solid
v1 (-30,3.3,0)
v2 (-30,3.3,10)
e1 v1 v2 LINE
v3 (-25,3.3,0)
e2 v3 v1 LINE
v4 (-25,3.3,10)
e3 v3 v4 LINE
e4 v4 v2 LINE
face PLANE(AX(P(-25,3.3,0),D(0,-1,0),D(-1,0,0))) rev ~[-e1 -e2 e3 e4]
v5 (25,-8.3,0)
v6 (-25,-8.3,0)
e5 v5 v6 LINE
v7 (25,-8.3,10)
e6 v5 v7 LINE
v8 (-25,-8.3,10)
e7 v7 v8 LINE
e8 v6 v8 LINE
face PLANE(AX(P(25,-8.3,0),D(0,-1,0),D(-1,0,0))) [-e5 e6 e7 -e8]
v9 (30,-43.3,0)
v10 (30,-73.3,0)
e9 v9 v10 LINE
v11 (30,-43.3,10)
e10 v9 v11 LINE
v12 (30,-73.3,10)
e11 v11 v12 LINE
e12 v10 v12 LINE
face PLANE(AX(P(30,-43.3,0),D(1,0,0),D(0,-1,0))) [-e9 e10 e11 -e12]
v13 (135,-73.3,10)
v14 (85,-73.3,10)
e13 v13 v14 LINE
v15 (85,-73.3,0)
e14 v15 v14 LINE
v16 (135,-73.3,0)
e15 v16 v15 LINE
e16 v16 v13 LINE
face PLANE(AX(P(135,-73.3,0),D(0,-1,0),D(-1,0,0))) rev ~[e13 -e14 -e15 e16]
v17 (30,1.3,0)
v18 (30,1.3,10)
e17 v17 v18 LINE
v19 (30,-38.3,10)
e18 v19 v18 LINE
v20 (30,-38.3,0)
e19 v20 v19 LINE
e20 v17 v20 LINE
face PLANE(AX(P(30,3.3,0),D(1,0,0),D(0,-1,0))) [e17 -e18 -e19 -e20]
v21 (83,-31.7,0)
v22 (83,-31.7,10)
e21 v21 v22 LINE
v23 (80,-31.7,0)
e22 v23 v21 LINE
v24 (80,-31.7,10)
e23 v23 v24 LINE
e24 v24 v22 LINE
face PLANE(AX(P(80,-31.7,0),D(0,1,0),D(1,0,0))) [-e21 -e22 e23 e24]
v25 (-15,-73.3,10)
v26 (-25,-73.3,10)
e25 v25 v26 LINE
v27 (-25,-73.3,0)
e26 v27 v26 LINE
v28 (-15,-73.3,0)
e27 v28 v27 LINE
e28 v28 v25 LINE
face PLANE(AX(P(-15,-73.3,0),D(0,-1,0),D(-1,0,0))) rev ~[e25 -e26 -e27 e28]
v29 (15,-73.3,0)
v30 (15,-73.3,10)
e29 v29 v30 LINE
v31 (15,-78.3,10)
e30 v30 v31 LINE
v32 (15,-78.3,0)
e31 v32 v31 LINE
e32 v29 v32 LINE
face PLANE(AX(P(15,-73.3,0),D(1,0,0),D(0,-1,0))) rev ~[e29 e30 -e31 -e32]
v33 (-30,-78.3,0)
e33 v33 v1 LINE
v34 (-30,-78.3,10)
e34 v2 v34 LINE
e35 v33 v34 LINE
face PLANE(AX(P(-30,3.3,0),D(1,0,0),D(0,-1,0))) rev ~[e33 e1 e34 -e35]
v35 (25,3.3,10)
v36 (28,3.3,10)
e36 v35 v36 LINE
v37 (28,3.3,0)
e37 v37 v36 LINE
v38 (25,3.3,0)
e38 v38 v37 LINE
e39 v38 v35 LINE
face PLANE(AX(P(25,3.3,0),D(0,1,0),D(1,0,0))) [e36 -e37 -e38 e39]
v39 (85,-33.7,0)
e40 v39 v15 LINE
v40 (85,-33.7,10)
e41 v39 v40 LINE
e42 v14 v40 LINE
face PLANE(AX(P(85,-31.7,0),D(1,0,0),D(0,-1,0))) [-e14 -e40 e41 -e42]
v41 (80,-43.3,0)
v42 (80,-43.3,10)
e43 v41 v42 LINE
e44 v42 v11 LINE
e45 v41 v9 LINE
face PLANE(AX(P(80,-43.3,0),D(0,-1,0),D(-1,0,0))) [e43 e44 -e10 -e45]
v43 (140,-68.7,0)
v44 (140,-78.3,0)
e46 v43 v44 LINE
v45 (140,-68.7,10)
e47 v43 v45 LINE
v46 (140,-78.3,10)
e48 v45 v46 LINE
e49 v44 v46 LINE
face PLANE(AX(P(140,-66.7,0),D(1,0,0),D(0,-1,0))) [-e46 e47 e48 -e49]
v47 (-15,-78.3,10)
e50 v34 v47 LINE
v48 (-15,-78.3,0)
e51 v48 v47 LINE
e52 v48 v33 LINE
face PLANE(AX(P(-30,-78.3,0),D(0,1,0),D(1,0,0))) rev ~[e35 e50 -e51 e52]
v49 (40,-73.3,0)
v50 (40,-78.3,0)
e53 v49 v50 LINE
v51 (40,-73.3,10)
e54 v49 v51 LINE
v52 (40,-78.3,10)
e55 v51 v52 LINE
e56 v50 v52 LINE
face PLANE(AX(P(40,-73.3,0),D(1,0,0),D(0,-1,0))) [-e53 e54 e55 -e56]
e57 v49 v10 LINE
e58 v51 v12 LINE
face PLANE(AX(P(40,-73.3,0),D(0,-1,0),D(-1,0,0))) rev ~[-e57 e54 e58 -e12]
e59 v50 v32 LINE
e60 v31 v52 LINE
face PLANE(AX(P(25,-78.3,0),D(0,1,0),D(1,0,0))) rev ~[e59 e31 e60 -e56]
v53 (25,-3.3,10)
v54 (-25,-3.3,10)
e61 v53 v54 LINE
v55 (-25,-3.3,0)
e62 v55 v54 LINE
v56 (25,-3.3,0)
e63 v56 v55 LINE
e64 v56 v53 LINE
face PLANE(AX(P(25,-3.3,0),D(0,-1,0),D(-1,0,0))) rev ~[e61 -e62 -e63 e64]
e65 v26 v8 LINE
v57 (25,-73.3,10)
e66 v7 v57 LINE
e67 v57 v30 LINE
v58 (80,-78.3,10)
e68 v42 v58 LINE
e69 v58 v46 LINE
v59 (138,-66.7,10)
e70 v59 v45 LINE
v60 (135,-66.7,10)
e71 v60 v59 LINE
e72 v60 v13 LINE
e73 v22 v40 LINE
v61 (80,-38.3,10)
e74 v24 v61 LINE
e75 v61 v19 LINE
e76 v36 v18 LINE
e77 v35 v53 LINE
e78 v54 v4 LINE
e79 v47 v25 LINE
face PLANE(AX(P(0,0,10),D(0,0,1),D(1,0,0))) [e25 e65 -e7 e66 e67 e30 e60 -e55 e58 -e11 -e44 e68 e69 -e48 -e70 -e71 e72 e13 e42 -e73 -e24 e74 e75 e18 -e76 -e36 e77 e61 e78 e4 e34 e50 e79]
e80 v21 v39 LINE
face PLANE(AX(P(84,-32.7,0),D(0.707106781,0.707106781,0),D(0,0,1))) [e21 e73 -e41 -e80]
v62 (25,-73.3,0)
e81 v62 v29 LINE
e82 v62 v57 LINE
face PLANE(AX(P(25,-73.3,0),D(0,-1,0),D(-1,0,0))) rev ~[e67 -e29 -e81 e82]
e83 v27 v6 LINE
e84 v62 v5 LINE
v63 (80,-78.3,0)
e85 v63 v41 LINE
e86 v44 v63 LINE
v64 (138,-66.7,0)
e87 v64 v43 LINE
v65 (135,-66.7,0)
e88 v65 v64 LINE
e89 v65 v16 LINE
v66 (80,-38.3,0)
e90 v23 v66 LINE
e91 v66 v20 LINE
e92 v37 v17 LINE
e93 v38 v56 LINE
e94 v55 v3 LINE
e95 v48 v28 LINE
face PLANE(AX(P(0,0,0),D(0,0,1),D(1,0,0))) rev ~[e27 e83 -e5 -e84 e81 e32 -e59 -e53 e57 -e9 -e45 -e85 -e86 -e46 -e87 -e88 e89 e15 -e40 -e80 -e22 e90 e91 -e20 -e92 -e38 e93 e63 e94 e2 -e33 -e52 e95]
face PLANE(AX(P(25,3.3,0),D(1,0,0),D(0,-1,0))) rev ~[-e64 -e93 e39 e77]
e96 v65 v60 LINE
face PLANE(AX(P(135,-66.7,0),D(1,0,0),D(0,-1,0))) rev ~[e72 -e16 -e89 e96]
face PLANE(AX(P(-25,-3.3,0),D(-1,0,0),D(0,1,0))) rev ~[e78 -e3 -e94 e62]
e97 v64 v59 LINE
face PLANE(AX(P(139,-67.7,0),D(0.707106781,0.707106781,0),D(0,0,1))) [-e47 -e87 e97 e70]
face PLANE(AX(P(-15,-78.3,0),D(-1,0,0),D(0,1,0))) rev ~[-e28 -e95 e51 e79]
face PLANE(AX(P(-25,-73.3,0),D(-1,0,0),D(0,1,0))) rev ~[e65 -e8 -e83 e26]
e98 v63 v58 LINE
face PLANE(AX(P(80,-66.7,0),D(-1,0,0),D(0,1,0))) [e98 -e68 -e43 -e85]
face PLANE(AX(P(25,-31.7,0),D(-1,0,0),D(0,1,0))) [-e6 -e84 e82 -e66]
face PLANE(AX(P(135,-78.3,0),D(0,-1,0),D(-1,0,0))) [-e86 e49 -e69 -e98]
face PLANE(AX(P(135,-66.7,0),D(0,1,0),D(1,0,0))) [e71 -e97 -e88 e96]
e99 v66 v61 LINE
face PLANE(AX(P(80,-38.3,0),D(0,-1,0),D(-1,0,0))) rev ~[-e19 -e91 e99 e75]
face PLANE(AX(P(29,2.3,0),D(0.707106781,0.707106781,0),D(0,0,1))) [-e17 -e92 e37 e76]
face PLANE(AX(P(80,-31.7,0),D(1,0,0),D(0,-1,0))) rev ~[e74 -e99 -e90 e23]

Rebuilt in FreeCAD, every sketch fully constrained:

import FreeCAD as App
import Part
import Sketcher
Q = App.Units.Quantity


def edges_at(feature, points):
    """Names of the edges that pass closest to the given points."""
    edges = feature.Shape.Edges
    near = lambda p: min(range(len(edges)), key=lambda i: edges[i].distToShape(Part.Vertex(*p))[0])
    return sorted({f"Edge{near(p) + 1}" for p in points})

doc = App.newDocument("Part")
params = doc.addObject("Spreadsheet::Sheet", "Params")
for row, (alias, value) in enumerate([
    ("sketch1_width", "5 mm"),
    ("sketch1_width2", "15 mm"),
    ("sketch1_width3", "50 mm"),
    ("sketch1_height", "35 mm"),
    ("sketch1_height2", "6.6 mm"),
    ("pad1_length", "10 mm"),
    ("chamfer_size", "2 mm"),
], start=1):
    params.set(f"A{row}", alias)
    params.set(f"B{row}", "=" + value)
    params.setAlias(f"B{row}", alias)

body = doc.addObject("PartDesign::Body", "Body")

sketch1 = body.newObject("Sketcher::SketchObject", "Sketch")
sketch1.AttachmentSupport = (doc.getObject("XY_Plane"), [""])
sketch1.MapMode = "FlatFace"
sketch1.addGeometry([
    Part.LineSegment(App.Vector(-25, -3, 0), App.Vector(-25, 3, 0)),
    Part.LineSegment(App.Vector(-25, 3, 0), App.Vector(-30, 3, 0)),
    Part.LineSegment(App.Vector(-30, 3, 0), App.Vector(-30, -78, 0)),
    Part.LineSegment(App.Vector(-30, -78, 0), App.Vector(-15, -78, 0)),
    Part.LineSegment(App.Vector(-15, -78, 0), App.Vector(-15, -73, 0)),
    Part.LineSegment(App.Vector(-15, -73, 0), App.Vector(-25, -73, 0)),
    Part.LineSegment(App.Vector(-25, -73, 0), App.Vector(-25, -8, 0)),
    Part.LineSegment(App.Vector(-25, -8, 0), App.Vector(25, -8, 0)),
    Part.LineSegment(App.Vector(25, -8, 0), App.Vector(25, -73, 0)),
    Part.LineSegment(App.Vector(25, -73, 0), App.Vector(15, -73, 0)),
    Part.LineSegment(App.Vector(15, -73, 0), App.Vector(15, -78, 0)),
    Part.LineSegment(App.Vector(15, -78, 0), App.Vector(40, -78, 0)),
    Part.LineSegment(App.Vector(40, -78, 0), App.Vector(40, -73, 0)),
    Part.LineSegment(App.Vector(40, -73, 0), App.Vector(30, -73, 0)),
    Part.LineSegment(App.Vector(30, -73, 0), App.Vector(30, -43, 0)),
    Part.LineSegment(App.Vector(30, -43, 0), App.Vector(80, -43, 0)),
    Part.LineSegment(App.Vector(80, -43, 0), App.Vector(80, -78, 0)),
    Part.LineSegment(App.Vector(80, -78, 0), App.Vector(140, -78, 0)),
    Part.LineSegment(App.Vector(140, -78, 0), App.Vector(140, -67, 0)),
    Part.LineSegment(App.Vector(140, -67, 0), App.Vector(135, -67, 0)),
    Part.LineSegment(App.Vector(135, -67, 0), App.Vector(135, -73, 0)),
    Part.LineSegment(App.Vector(135, -73, 0), App.Vector(85, -73, 0)),
    Part.LineSegment(App.Vector(85, -73, 0), App.Vector(85, -32, 0)),
    Part.LineSegment(App.Vector(85, -32, 0), App.Vector(80, -32, 0)),
    Part.LineSegment(App.Vector(80, -32, 0), App.Vector(80, -38, 0)),
    Part.LineSegment(App.Vector(80, -38, 0), App.Vector(30, -38, 0)),
    Part.LineSegment(App.Vector(30, -38, 0), App.Vector(30, 3, 0)),
    Part.LineSegment(App.Vector(30, 3, 0), App.Vector(25, 3, 0)),
    Part.LineSegment(App.Vector(25, 3, 0), App.Vector(25, -3, 0)),
    Part.LineSegment(App.Vector(25, -3, 0), App.Vector(-25, -3, 0)),
], False)
sketch1.addConstraint([
    Sketcher.Constraint("Coincident", 0, 2, 1, 1),
    Sketcher.Constraint("Coincident", 1, 2, 2, 1),
    Sketcher.Constraint("Coincident", 2, 2, 3, 1),
    Sketcher.Constraint("Coincident", 3, 2, 4, 1),
    Sketcher.Constraint("Coincident", 4, 2, 5, 1),
    Sketcher.Constraint("Coincident", 5, 2, 6, 1),
    Sketcher.Constraint("Coincident", 6, 2, 7, 1),
    Sketcher.Constraint("Coincident", 7, 2, 8, 1),
    Sketcher.Constraint("Coincident", 8, 2, 9, 1),
    Sketcher.Constraint("Coincident", 9, 2, 10, 1),
    Sketcher.Constraint("Coincident", 10, 2, 11, 1),
    Sketcher.Constraint("Coincident", 11, 2, 12, 1),
    Sketcher.Constraint("Coincident", 12, 2, 13, 1),
    Sketcher.Constraint("Coincident", 13, 2, 14, 1),
    Sketcher.Constraint("Coincident", 14, 2, 15, 1),
    Sketcher.Constraint("Coincident", 15, 2, 16, 1),
    Sketcher.Constraint("Coincident", 16, 2, 17, 1),
    Sketcher.Constraint("Coincident", 17, 2, 18, 1),
    Sketcher.Constraint("Coincident", 18, 2, 19, 1),
    Sketcher.Constraint("Coincident", 19, 2, 20, 1),
    Sketcher.Constraint("Coincident", 20, 2, 21, 1),
    Sketcher.Constraint("Coincident", 21, 2, 22, 1),
    Sketcher.Constraint("Coincident", 22, 2, 23, 1),
    Sketcher.Constraint("Coincident", 23, 2, 24, 1),
    Sketcher.Constraint("Coincident", 24, 2, 25, 1),
    Sketcher.Constraint("Coincident", 25, 2, 26, 1),
    Sketcher.Constraint("Coincident", 26, 2, 27, 1),
    Sketcher.Constraint("Coincident", 27, 2, 28, 1),
    Sketcher.Constraint("Coincident", 28, 2, 29, 1),
    Sketcher.Constraint("Coincident", 29, 2, 0, 1),
    Sketcher.Constraint("Vertical", 0),
    Sketcher.Constraint("Horizontal", 1),
    Sketcher.Constraint("Vertical", 2),
    Sketcher.Constraint("Horizontal", 3),
    Sketcher.Constraint("Vertical", 4),
    Sketcher.Constraint("Horizontal", 5),
    Sketcher.Constraint("Vertical", 6),
    Sketcher.Constraint("Horizontal", 7),
    Sketcher.Constraint("Vertical", 8),
    Sketcher.Constraint("Horizontal", 9),
    Sketcher.Constraint("Vertical", 10),
    Sketcher.Constraint("Horizontal", 11),
    Sketcher.Constraint("Vertical", 12),
    Sketcher.Constraint("Horizontal", 13),
    Sketcher.Constraint("Vertical", 14),
    Sketcher.Constraint("Horizontal", 15),
    Sketcher.Constraint("Vertical", 16),
    Sketcher.Constraint("Horizontal", 17),
    Sketcher.Constraint("Vertical", 18),
    Sketcher.Constraint("Horizontal", 19),
    Sketcher.Constraint("Vertical", 20),
    Sketcher.Constraint("Horizontal", 21),
    Sketcher.Constraint("Vertical", 22),
    Sketcher.Constraint("Horizontal", 23),
    Sketcher.Constraint("Vertical", 24),
    Sketcher.Constraint("Horizontal", 25),
    Sketcher.Constraint("Vertical", 26),
    Sketcher.Constraint("Horizontal", 27),
    Sketcher.Constraint("Vertical", 28),
    Sketcher.Constraint("Horizontal", 29),
    Sketcher.Constraint("Symmetric", 0, 2, 28, 2, -1, 1),
    Sketcher.Constraint("Symmetric", 5, 2, 8, 2, -2),
    Sketcher.Constraint("Symmetric", 3, 2, 10, 2, -2),
    Sketcher.Constraint("Symmetric", 1, 2, 26, 2, -2),
    Sketcher.Constraint("Horizontal", 9, 2, 12, 2),
    Sketcher.Constraint("Horizontal", 11, 2, 16, 2),
    Sketcher.Constraint("Horizontal", 13, 2, 20, 2),
    Sketcher.Constraint("Vertical", 0, 2, 5, 2),
    Sketcher.Constraint("Vertical", 16, 2, 23, 2),
    Sketcher.Constraint("Vertical", 14, 2, 25, 2),
    Sketcher.Constraint("Equal", 9, 13),
    Sketcher.Constraint("Equal", 7, 15),
    Sketcher.Constraint("Equal", 1, 19),
    Sketcher.Constraint("Equal", 15, 21),
    Sketcher.Constraint("Equal", 19, 23),
    Sketcher.Constraint("Equal", 27, 4),
    Sketcher.Constraint("Equal", 0, 20),
    Sketcher.Constraint("Equal", 20, 24),
    Sketcher.Constraint("Equal", 22, 26),
    Sketcher.Constraint("DistanceX", 1, 2, 1, 1, Q("5 mm")),
    Sketcher.Constraint("DistanceX", 3, 1, 3, 2, Q("15 mm")),
    Sketcher.Constraint("DistanceX", 7, 1, 7, 2, Q("50 mm")),
    Sketcher.Constraint("DistanceY", 16, 2, 16, 1, Q("35 mm")),
    Sketcher.Constraint("DistanceY", 0, 1, 0, 2, Q("6.6 mm")),
    Sketcher.Constraint("DistanceY", 14, 2, 7, 2, Q("35 mm")),
    Sketcher.Constraint("DistanceY", 19, 2, 22, 2, Q("35 mm")),
])
sketch1.setExpression("Constraints[79]", "Params.sketch1_width")
sketch1.setExpression("Constraints[80]", "Params.sketch1_width2")
sketch1.setExpression("Constraints[81]", "Params.sketch1_width3")
sketch1.setExpression("Constraints[82]", "Params.sketch1_height")
sketch1.setExpression("Constraints[83]", "Params.sketch1_height2")
pad1 = body.newObject("PartDesign::Pad", "Pad")
pad1.Profile = sketch1
pad1.setExpression("Length", "Params.pad1_length")
doc.recompute()

chamfer = body.newObject("PartDesign::Chamfer", "Chamfer")
chamfer.Base = (pad1, edges_at(pad1, [(85, -31.7, 5), (30, 3.3, 5), (140, -66.7, 5)]))
chamfer.setExpression("Size", "Params.chamfer_size")

doc.recompute()
